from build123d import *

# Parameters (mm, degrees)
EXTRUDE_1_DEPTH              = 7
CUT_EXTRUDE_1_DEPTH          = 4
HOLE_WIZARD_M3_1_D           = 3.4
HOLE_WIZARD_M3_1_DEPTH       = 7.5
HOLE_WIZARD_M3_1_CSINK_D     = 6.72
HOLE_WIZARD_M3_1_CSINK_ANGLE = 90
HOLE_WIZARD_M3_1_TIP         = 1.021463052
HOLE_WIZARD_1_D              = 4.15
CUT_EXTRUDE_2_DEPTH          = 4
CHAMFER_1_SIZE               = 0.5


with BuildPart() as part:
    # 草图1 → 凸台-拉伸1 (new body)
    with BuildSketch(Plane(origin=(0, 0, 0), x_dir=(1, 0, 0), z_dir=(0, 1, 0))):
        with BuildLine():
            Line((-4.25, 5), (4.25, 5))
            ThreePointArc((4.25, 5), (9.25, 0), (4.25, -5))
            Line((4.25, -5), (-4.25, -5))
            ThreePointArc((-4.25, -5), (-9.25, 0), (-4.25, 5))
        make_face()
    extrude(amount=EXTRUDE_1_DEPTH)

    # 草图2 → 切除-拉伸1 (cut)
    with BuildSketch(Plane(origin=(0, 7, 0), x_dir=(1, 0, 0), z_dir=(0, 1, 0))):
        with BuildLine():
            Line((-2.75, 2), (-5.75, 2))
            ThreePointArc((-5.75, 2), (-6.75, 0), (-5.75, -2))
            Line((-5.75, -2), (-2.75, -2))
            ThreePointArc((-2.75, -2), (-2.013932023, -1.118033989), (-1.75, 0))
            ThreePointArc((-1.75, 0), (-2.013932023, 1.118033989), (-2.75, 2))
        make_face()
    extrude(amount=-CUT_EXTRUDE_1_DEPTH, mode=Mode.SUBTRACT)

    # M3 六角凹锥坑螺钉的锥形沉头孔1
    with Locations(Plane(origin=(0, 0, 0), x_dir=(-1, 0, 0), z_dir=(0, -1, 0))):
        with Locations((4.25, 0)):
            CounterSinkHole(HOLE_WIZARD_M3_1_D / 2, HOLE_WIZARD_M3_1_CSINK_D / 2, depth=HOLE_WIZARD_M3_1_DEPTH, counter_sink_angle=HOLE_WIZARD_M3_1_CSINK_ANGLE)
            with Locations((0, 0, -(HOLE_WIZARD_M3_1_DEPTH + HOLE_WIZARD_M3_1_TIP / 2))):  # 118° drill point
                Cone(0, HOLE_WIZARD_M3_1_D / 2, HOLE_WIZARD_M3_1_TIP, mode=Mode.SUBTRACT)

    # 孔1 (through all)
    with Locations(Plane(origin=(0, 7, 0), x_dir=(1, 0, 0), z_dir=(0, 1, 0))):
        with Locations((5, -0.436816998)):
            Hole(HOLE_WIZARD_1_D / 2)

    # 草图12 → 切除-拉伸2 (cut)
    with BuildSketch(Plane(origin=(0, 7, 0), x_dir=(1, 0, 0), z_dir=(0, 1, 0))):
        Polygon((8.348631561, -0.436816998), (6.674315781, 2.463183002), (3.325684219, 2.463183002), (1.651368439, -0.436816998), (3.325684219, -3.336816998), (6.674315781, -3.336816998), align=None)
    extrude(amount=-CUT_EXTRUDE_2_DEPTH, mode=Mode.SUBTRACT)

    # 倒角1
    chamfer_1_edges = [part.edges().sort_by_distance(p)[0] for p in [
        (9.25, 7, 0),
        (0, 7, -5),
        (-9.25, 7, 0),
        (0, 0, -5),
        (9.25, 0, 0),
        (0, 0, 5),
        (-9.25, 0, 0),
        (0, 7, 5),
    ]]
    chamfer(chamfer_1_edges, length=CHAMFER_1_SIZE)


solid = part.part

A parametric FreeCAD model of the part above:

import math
import FreeCAD as App
import Part
import Sketcher
Q = App.Units.Quantity


def edges_at(feature, points):
    """Names of the edges that pass closest to the given points."""
    edges = feature.Shape.Edges
    near = lambda p: min(range(len(edges)), key=lambda i: edges[i].distToShape(Part.Vertex(*p))[0])
    return sorted({f"Edge{near(p) + 1}" for p in points})

doc = App.newDocument("Part")
body = doc.addObject("PartDesign::Body", "Body")

# Sketch on XZ plane
sketch1 = body.newObject("Sketcher::SketchObject", "Sketch")
sketch1.AttachmentSupport = (doc.getObject("XZ_Plane"), [""])
sketch1.MapMode = "FlatFace"
sketch1.addGeometry([
    Part.LineSegment(App.Vector(4, -5, 0), App.Vector(-4, -5, 0)),
    Part.ArcOfCircle(Part.Circle(App.Vector(-4, 0, 0), App.Vector(0, 0, 1), 5), math.radians(90), math.radians(270)),
    Part.LineSegment(App.Vector(-4, 5, 0), App.Vector(4, 5, 0)),
    Part.ArcOfCircle(Part.Circle(App.Vector(4, 0, 0), App.Vector(0, 0, 1), 5), math.radians(-90), math.radians(90)),
], False)
sketch1.addConstraint([
    Sketcher.Constraint("Tangent", 0, 2, 1, 2),
    Sketcher.Constraint("Tangent", 1, 1, 2, 1),
    Sketcher.Constraint("Tangent", 2, 2, 3, 2),
    Sketcher.Constraint("Tangent", 3, 1, 0, 1),
    Sketcher.Constraint("Horizontal", 0),
    Sketcher.Constraint("Horizontal", 2),
    Sketcher.Constraint("Symmetric", 1, 3, 3, 3, -1, 1),
    Sketcher.Constraint("Radius", 1, 5.0),
    Sketcher.Constraint("DistanceX", 0, 2, 0, 1, 8.5),
])
pad1 = body.newObject("PartDesign::Pad", "Pad")
pad1.Profile = sketch1
pad1.Length = 7
pad1.Reversed = True

# Sketch on XZ plane
sketch2 = body.newObject("Sketcher::SketchObject", "Sketch001")
sketch2.AttachmentSupport = (doc.getObject("XZ_Plane"), [""])
sketch2.MapMode = "FlatFace"
sketch2.AttachmentOffset = App.Placement(App.Vector(0, 0, -7), App.Rotation())
sketch2.addGeometry([
    Part.LineSegment(App.Vector(-2.8, -2, 0), App.Vector(-5.8, -2, 0)),  # 0
    Part.ArcOfCircle(Part.Circle(App.Vector(-4.2, 0, 0), App.Vector(0, 0, 1), 2.5), math.radians(127), math.radians(233)),  # 1
    Part.LineSegment(App.Vector(-5.8, 2, 0), App.Vector(-2.8, 2, 0)),  # 2
    Part.ArcOfCircle(Part.Circle(App.Vector(-4.3, 0, 0), App.Vector(0, 0, 1), 2.5), math.radians(0), math.radians(53)),  # 3
    Part.ArcOfCircle(Part.Circle(App.Vector(-4.3, 0, 0), App.Vector(0, 0, 1), 2.5), math.radians(-53), math.radians(0)),  # 4
], False)
sketch2.addConstraint([
    Sketcher.Constraint("Coincident", 0, 2, 1, 2),
    Sketcher.Constraint("Coincident", 1, 1, 2, 1),
    Sketcher.Constraint("Coincident", 2, 2, 3, 2),
    Sketcher.Constraint("Tangent", 3, 1, 4, 2),
    Sketcher.Constraint("Coincident", 4, 1, 0, 1),
    Sketcher.Constraint("Horizontal", 0),
    Sketcher.Constraint("Horizontal", 2),
    Sketcher.Constraint("Coincident", 3, 3, 1, 3),
    Sketcher.Constraint("Equal", 1, 3),
    Sketcher.Constraint("Equal", 3, 4),
    Sketcher.Constraint("Symmetric", 0, 2, 1, 1, -1),
    Sketcher.Constraint("PointOnObject", 3, 1, -1),
    Sketcher.Constraint("Radius", 1, 2.5),
    Sketcher.Constraint("DistanceX", 0, 2, 0, 1, 3.0),
    Sketcher.Constraint("DistanceX", 1, 3, -1, 1, 4.25),
])
pocket1 = body.newObject("PartDesign::Pocket", "Pocket")
pocket1.Profile = sketch2
pocket1.Length = 4
pocket1.Reversed = True

# Sketch on XZ plane
sketch3 = body.newObject("Sketcher::SketchObject", "Sketch002")
sketch3.AttachmentSupport = (doc.getObject("XZ_Plane"), [""])
sketch3.MapMode = "FlatFace"
sketch3.addGeometry(Part.Circle(App.Vector(-4.2, 0, 0), App.Vector(0, 0, 1), 1.7), False)
sketch3.addConstraint([
    Sketcher.Constraint("PointOnObject", 0, 3, -1),
    Sketcher.Constraint("Diameter", 0, 3.4),
    Sketcher.Constraint("DistanceX", 0, 3, -1, 1, 4.25),
])
doc.recompute()
hole = body.newObject("PartDesign::Hole", "Hole")
hole.Profile = sketch3
hole.ThreadType = "None"
hole.Diameter = 3.4
hole.DepthType = "Dimension"
hole.Depth = 7.5
hole.DrillPoint = "Angled"
hole.DrillPointAngle = 118
hole.HoleCutType = "Countersink"
hole.HoleCutDiameter = 6.72
hole.HoleCutCountersinkAngle = 90

# Sketch on XZ plane
sketch4 = body.newObject("Sketcher::SketchObject", "Sketch003")
sketch4.AttachmentSupport = (doc.getObject("XZ_Plane"), [""])
sketch4.MapMode = "FlatFace"
sketch4.AttachmentOffset = App.Placement(App.Vector(0, 0, -7), App.Rotation())
sketch4.addGeometry(Part.Circle(App.Vector(5, 0.4, 0), App.Vector(0, 0, 1), 2.1), False)
sketch4.addConstraint([
    Sketcher.Constraint("Diameter", 0, 4.15),
    Sketcher.Constraint("DistanceX", -1, 1, 0, 3, 5.0),
    Sketcher.Constraint("DistanceY", -1, 1, 0, 3, 0.436817),
])
doc.recompute()
hole2 = body.newObject("PartDesign::Hole", "Hole001")
hole2.Profile = sketch4
hole2.ThreadType = "None"
hole2.Diameter = 4.15
hole2.DepthType = "ThroughAll"
hole2.Reversed = True

# Sketch on XZ plane
sketch5 = body.newObject("Sketcher::SketchObject", "Sketch004")
sketch5.AttachmentSupport = (doc.getObject("XZ_Plane"), [""])
sketch5.MapMode = "FlatFace"
sketch5.AttachmentOffset = App.Placement(App.Vector(0, 0, -7), App.Rotation())
sketch5.addGeometry([
    Part.LineSegment(App.Vector(8.3, 0.4, 0), App.Vector(6.7, -2.5, 0)),  # 0
    Part.LineSegment(App.Vector(6.7, -2.5, 0), App.Vector(3.3, -2.5, 0)),  # 1
    Part.LineSegment(App.Vector(3.3, -2.5, 0), App.Vector(1.7, 0.4, 0)),  # 2
    Part.LineSegment(App.Vector(1.7, 0.4, 0), App.Vector(3.3, 3.3, 0)),  # 3
    Part.LineSegment(App.Vector(3.3, 3.3, 0), App.Vector(6.7, 3.3, 0)),  # 4
    Part.LineSegment(App.Vector(6.7, 3.3, 0), App.Vector(8.3, 0.4, 0)),  # 5
], False)
sketch5.addConstraint([
    Sketcher.Constraint("Coincident", 0, 2, 1, 1),
    Sketcher.Constraint("Coincident", 1, 2, 2, 1),
    Sketcher.Constraint("Coincident", 2, 2, 3, 1),
    Sketcher.Constraint("Coincident", 3, 2, 4, 1),
    Sketcher.Constraint("Coincident", 4, 2, 5, 1),
    Sketcher.Constraint("Coincident", 5, 2, 0, 1),
    Sketcher.Constraint("Horizontal", 1),
    Sketcher.Constraint("Horizontal", 4),
    Sketcher.Constraint("Parallel", 0, 3),
    Sketcher.Constraint("Parallel", 2, 5),
    Sketcher.Constraint("Horizontal", 2, 2, 5, 2),
    Sketcher.Constraint("Vertical", 1, 2, 3, 2),
    Sketcher.Constraint("Vertical", 0, 2, 4, 2),
    Sketcher.Constraint("Angle", 0, Q("-120 deg")),
    Sketcher.Constraint("DistanceY", 1, 2, 2, 2, 2.9),
    Sketcher.Constraint("DistanceX", 1, 2, 1, 1, 3.348632),
    Sketcher.Constraint("DistanceX", -1, 1, 2, 2, 1.651368),
    Sketcher.Constraint("DistanceY", 0, 2, -1, 1, 2.463183),
])
pocket2 = body.newObject("PartDesign::Pocket", "Pocket001")
pocket2.Profile = sketch5
pocket2.Length = 4
pocket2.Reversed = True
doc.recompute()

chamfer = body.newObject("PartDesign::Chamfer", "Chamfer")
chamfer.Base = (pocket2, edges_at(pocket2, [
    (9.25, 7, 0),
    (0, 7, -5),
    (-9.25, 7, 0),
    (0, 0, -5),
    (9.25, 0, 0),
    (0, 0, 5),
    (-9.25, 0, 0),
    (0, 7, 5),
]))
chamfer.Size = 0.5

doc.recompute()
